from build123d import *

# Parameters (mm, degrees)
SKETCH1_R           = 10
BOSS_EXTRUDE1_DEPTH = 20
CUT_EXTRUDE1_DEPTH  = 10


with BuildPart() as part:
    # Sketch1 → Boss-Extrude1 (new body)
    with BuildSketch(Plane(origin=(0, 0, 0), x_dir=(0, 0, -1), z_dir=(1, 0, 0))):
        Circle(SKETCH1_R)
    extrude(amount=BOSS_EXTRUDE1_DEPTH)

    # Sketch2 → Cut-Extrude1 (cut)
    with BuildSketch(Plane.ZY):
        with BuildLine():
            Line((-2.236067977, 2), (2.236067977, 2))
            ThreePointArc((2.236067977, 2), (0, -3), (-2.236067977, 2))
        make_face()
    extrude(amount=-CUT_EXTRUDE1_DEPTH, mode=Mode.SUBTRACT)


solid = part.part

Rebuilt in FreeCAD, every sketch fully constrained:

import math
import FreeCAD as App
import Part
import Sketcher

V = App.Vector

doc = App.newDocument("Part")
body = doc.addObject("PartDesign::Body", "Body")

# Sketch on YZ plane
sketch1 = body.newObject("Sketcher::SketchObject", "Sketch")
sketch1.AttachmentSupport = (doc.getObject("YZ_Plane"), [""])
sketch1.MapMode = "FlatFace"
sketch1.addGeometry(Part.Circle(V(0, 0, 0), V(0, 0, 1), 10), False)
sketch1.addConstraint([
    Sketcher.Constraint("Coincident", 0, 3, -1, 1),
    Sketcher.Constraint("Diameter", 0, 20.0),
])
pad1 = body.newObject("PartDesign::Pad", "Pad")
pad1.Profile = sketch1
pad1.Length = 20

# Sketch on YZ plane
sketch2 = body.newObject("Sketcher::SketchObject", "Sketch001")
sketch2.AttachmentSupport = (doc.getObject("YZ_Plane"), [""])
sketch2.MapMode = "FlatFace"
sketch2.addGeometry([
    Part.LineSegment(V(2, 2.2, 0), V(2, -2.2, 0)),
    Part.ArcOfCircle(Part.Circle(V(0, 0, 0), V(0, 0, 1), 3), math.radians(48), math.radians(312)),
], False)
sketch2.addConstraint([
    Sketcher.Constraint("Coincident", 0, 1, 1, 1),
    Sketcher.Constraint("Coincident", 1, 2, 0, 2),
    Sketcher.Constraint("Vertical", 0),
    Sketcher.Constraint("Coincident", 1, 3, -1, 1),
    Sketcher.Constraint("Radius", 1, 3.0),
    Sketcher.Constraint("DistanceX", -1, 1, 0, 1, 2.0),
])
pocket1 = body.newObject("PartDesign::Pocket", "Pocket")
pocket1.Profile = sketch2
pocket1.Length = 10
pocket1.Reversed = True

doc.recompute()
